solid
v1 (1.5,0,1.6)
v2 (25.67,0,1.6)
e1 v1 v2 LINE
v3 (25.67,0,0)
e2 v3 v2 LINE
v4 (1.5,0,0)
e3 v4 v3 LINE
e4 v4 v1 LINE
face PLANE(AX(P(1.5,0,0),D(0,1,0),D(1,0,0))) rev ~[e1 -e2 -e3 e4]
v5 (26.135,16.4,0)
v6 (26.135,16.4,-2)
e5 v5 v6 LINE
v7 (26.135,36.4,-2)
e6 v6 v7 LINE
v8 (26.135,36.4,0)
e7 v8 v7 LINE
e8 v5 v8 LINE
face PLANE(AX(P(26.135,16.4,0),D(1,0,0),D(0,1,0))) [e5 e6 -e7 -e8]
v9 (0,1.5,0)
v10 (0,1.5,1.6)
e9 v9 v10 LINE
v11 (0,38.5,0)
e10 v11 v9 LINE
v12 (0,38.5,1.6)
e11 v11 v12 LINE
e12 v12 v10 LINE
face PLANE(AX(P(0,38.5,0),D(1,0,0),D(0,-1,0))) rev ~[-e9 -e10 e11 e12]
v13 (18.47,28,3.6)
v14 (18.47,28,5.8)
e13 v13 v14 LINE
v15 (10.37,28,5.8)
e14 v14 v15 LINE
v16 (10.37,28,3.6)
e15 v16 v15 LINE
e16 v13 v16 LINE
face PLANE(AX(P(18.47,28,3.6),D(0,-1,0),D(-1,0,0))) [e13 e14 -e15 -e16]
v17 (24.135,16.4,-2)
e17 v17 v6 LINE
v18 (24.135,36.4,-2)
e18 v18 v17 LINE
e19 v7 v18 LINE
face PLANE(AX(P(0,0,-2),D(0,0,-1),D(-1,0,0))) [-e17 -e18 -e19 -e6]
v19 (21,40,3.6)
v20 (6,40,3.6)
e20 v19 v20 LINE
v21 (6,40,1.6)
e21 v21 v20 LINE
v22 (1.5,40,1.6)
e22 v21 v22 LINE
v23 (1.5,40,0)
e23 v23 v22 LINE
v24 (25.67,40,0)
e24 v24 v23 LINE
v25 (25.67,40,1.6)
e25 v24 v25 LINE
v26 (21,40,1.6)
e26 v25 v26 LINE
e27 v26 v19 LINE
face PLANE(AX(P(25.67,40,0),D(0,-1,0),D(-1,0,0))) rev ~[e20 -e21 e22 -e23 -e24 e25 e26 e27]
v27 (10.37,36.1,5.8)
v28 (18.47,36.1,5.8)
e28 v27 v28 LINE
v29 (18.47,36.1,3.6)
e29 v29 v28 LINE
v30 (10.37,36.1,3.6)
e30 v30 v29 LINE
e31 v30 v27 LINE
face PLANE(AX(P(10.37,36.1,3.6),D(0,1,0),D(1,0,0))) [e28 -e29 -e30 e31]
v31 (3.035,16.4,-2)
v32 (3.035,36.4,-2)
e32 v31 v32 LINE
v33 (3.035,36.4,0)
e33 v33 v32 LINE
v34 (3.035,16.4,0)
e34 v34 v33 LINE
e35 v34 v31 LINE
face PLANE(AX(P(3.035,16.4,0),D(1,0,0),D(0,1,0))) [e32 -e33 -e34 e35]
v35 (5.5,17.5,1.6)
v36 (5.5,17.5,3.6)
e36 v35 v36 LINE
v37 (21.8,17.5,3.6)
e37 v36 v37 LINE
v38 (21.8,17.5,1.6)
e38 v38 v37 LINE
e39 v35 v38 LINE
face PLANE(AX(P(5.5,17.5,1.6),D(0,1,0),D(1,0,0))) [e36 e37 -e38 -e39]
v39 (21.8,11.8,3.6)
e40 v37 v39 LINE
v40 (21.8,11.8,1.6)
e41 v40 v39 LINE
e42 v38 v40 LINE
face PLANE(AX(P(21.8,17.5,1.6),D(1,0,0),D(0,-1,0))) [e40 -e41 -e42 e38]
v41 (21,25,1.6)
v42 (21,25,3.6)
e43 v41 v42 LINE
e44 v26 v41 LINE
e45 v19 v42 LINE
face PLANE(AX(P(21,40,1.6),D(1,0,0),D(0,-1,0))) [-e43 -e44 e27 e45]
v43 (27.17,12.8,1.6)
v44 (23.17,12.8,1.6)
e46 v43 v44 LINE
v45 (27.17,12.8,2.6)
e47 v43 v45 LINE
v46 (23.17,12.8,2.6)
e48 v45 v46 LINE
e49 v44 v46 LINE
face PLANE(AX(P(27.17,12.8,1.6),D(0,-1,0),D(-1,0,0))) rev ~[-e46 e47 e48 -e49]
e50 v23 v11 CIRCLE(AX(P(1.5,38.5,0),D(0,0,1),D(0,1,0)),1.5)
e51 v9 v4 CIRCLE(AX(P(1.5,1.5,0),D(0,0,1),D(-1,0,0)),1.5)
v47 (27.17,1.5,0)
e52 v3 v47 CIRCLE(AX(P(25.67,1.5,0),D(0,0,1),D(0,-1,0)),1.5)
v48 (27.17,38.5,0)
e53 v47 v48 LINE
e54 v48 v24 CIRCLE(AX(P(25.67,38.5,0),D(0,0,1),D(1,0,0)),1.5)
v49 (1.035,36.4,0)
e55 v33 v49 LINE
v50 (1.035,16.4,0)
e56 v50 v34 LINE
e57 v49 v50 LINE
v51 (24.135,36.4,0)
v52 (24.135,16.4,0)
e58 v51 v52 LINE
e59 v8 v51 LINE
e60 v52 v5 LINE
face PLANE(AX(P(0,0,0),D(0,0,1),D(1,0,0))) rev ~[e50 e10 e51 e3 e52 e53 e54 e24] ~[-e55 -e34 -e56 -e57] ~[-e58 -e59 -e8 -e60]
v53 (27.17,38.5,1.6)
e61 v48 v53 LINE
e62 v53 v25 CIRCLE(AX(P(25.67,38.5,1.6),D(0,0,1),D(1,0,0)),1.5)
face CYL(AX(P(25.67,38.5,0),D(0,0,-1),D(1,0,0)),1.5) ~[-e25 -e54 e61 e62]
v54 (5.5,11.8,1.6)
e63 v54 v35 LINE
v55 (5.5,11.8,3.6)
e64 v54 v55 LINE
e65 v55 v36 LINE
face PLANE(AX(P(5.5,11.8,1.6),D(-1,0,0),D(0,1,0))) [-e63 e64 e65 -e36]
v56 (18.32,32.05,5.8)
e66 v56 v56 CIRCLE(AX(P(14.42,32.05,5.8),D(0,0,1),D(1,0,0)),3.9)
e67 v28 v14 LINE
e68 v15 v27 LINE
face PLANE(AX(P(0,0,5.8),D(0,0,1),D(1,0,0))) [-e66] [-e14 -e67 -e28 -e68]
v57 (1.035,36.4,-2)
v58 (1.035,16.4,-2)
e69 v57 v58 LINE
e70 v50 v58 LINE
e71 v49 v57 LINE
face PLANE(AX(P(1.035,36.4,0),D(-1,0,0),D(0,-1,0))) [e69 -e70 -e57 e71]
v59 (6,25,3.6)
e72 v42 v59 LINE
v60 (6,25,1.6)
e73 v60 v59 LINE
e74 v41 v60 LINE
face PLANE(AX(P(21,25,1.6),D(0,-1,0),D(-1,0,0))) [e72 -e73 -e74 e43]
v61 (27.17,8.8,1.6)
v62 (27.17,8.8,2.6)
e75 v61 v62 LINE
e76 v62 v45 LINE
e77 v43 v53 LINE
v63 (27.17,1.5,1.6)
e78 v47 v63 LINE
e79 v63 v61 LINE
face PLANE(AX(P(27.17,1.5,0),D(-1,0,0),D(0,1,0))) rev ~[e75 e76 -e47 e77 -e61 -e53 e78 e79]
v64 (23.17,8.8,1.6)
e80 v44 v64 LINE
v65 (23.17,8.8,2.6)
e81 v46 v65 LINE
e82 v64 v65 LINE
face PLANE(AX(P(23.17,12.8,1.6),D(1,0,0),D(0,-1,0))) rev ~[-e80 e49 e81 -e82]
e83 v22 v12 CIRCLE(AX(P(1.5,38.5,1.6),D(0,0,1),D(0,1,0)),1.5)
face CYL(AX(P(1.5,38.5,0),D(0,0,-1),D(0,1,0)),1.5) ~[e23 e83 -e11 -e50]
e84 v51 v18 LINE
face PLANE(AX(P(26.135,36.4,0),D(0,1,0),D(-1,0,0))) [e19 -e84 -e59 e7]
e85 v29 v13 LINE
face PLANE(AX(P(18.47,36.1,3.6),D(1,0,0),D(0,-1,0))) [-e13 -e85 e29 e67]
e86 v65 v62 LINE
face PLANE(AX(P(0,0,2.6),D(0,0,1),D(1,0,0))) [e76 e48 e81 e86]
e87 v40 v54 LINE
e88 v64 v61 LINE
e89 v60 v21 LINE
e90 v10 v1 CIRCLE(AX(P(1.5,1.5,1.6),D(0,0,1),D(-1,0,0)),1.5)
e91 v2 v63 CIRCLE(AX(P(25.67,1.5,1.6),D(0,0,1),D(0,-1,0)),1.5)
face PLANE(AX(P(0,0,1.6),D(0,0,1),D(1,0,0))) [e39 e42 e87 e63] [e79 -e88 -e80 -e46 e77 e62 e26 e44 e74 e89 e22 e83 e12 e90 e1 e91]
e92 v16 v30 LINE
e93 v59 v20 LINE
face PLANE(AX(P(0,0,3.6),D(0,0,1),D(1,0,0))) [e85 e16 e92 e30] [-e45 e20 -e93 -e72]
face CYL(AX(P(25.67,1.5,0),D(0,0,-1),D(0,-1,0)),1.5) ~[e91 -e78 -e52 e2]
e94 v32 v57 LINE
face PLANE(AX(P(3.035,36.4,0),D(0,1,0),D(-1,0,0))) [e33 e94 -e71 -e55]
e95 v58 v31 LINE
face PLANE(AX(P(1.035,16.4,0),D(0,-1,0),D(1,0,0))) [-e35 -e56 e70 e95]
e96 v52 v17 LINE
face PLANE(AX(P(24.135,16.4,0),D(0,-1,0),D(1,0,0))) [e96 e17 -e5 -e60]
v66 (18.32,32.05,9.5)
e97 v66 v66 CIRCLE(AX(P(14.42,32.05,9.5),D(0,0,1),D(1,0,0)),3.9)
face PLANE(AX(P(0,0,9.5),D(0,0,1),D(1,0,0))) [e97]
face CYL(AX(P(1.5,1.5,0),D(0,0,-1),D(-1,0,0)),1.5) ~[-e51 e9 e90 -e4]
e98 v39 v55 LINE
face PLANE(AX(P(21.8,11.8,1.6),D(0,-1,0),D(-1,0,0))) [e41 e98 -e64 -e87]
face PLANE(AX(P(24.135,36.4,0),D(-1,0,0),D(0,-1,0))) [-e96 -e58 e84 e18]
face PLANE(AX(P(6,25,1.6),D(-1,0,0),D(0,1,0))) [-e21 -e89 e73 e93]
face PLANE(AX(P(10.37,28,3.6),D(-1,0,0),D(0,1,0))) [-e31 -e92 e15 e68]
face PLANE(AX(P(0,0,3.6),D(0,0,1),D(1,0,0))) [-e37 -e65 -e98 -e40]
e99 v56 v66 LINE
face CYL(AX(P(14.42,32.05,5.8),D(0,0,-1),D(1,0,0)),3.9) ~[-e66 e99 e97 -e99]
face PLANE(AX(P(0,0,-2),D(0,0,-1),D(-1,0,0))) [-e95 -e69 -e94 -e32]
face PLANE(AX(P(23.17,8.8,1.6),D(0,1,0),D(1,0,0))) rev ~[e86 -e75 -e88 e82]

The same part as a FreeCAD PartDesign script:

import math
import FreeCAD as App
import Part
import Sketcher
from FreeCAD import Vector

doc = App.newDocument("Part")
body = doc.addObject("PartDesign::Body", "Body")

# Sketch on XY plane
sketch1 = body.newObject("Sketcher::SketchObject", "Sketch")
sketch1.AttachmentSupport = (doc.getObject("XY_Plane"), [""])
sketch1.MapMode = "FlatFace"
sketch1.addGeometry(Part.ArcOfCircle(Part.Circle(Vector(1.5, 1.5, 0), Vector(0, 0, 1), 1.5), math.radians(180), math.radians(270)), False)
sketch1.addGeometry(Part.LineSegment(Vector(1.5, 0, 0), Vector(25.7, 0, 0)), False)
sketch1.addGeometry(Part.ArcOfCircle(Part.Circle(Vector(25.7, 1.5, 0), Vector(0, 0, 1), 1.5), math.radians(-90), math.radians(0)), False)
sketch1.addGeometry(Part.LineSegment(Vector(27.2, 1.5, 0), Vector(27.2, 38.5, 0)), False)
sketch1.addGeometry(Part.ArcOfCircle(Part.Circle(Vector(25.7, 38.5, 0), Vector(0, 0, 1), 1.5), math.radians(0), math.radians(90)), False)
sketch1.addGeometry(Part.LineSegment(Vector(25.7, 40, 0), Vector(1.5, 40, 0)), False)
sketch1.addGeometry(Part.ArcOfCircle(Part.Circle(Vector(1.5, 38.5, 0), Vector(0, 0, 1), 1.5), math.radians(90), math.radians(180)), False)
sketch1.addGeometry(Part.LineSegment(Vector(0, 38.5, 0), Vector(0, 1.5, 0)), False)
sketch1.addConstraint(Sketcher.Constraint("Tangent", 0, 2, 1, 1))
sketch1.addConstraint(Sketcher.Constraint("Tangent", 1, 2, 2, 1))
sketch1.addConstraint(Sketcher.Constraint("Tangent", 2, 2, 3, 1))
sketch1.addConstraint(Sketcher.Constraint("Tangent", 3, 2, 4, 1))
sketch1.addConstraint(Sketcher.Constraint("Tangent", 4, 2, 5, 1))
sketch1.addConstraint(Sketcher.Constraint("Tangent", 5, 2, 6, 1))
sketch1.addConstraint(Sketcher.Constraint("Tangent", 6, 2, 7, 1))
sketch1.addConstraint(Sketcher.Constraint("Tangent", 7, 2, 0, 1))
sketch1.addConstraint(Sketcher.Constraint("Horizontal", 1))
sketch1.addConstraint(Sketcher.Constraint("Vertical", 3))
sketch1.addConstraint(Sketcher.Constraint("Horizontal", 5))
sketch1.addConstraint(Sketcher.Constraint("Vertical", 7))
sketch1.addConstraint(Sketcher.Constraint("Equal", 0, 2))
sketch1.addConstraint(Sketcher.Constraint("Equal", 2, 4))
sketch1.addConstraint(Sketcher.Constraint("Equal", 4, 6))
sketch1.addConstraint(Sketcher.Constraint("PointOnObject", 0, 2, -1))
sketch1.addConstraint(Sketcher.Constraint("PointOnObject", 6, 2, -2))
sketch1.addConstraint(Sketcher.Constraint("Radius", 0, 1.5))
sketch1.addConstraint(Sketcher.Constraint("DistanceY", -1, 1, 4, 2, 40.0))
sketch1.addConstraint(Sketcher.Constraint("DistanceX", -1, 1, 2, 2, 27.17))
pad1 = body.newObject("PartDesign::Pad", "Pad")
pad1.Profile = sketch1
pad1.Length = 1.6

# Sketch on XY plane
sketch2 = body.newObject("Sketcher::SketchObject", "Sketch001")
sketch2.AttachmentSupport = (doc.getObject("XY_Plane"), [""])
sketch2.MapMode = "FlatFace"
sketch2.AttachmentOffset = App.Placement(Vector(0, 0, 1.6), App.Rotation())
sketch2.addGeometry(Part.LineSegment(Vector(21, 25, 0), Vector(21, 40, 0)), False)
sketch2.addGeometry(Part.LineSegment(Vector(21, 40, 0), Vector(6, 40, 0)), False)
sketch2.addGeometry(Part.LineSegment(Vector(6, 40, 0), Vector(6, 25, 0)), False)
sketch2.addGeometry(Part.LineSegment(Vector(6, 25, 0), Vector(21, 25, 0)), False)
sketch2.addConstraint(Sketcher.Constraint("Coincident", 0, 2, 1, 1))
sketch2.addConstraint(Sketcher.Constraint("Coincident", 1, 2, 2, 1))
sketch2.addConstraint(Sketcher.Constraint("Coincident", 2, 2, 3, 1))
sketch2.addConstraint(Sketcher.Constraint("Coincident", 3, 2, 0, 1))
sketch2.addConstraint(Sketcher.Constraint("Vertical", 0))
sketch2.addConstraint(Sketcher.Constraint("Horizontal", 1))
sketch2.addConstraint(Sketcher.Constraint("Vertical", 2))
sketch2.addConstraint(Sketcher.Constraint("Horizontal", 3))
sketch2.addConstraint(Sketcher.Constraint("Equal", 3, 0))
sketch2.addConstraint(Sketcher.Constraint("DistanceX", 1, 2, 1, 1, 15.0))
sketch2.addConstraint(Sketcher.Constraint("DistanceX", -1, 1, 1, 2, 6.0))
sketch2.addConstraint(Sketcher.Constraint("DistanceY", -1, 1, 0, 2, 40.0))
pad2 = body.newObject("PartDesign::Pad", "Pad001")
pad2.Profile = sketch2
pad2.Length = 2

# Sketch on XY plane
sketch3 = body.newObject("Sketcher::SketchObject", "Sketch002")
sketch3.AttachmentSupport = (doc.getObject("XY_Plane"), [""])
sketch3.MapMode = "FlatFace"
sketch3.AttachmentOffset = App.Placement(Vector(0, 0, 1.6), App.Rotation())
sketch3.addGeometry(Part.LineSegment(Vector(22, 18, 0), Vector(6, 18, 0)), False)
sketch3.addGeometry(Part.LineSegment(Vector(6, 18, 0), Vector(6, 12, 0)), False)
sketch3.addGeometry(Part.LineSegment(Vector(6, 12, 0), Vector(22, 12, 0)), False)
sketch3.addGeometry(Part.LineSegment(Vector(22, 12, 0), Vector(22, 18, 0)), False)
sketch3.addConstraint(Sketcher.Constraint("Coincident", 0, 2, 1, 1))
sketch3.addConstraint(Sketcher.Constraint("Coincident", 1, 2, 2, 1))
sketch3.addConstraint(Sketcher.Constraint("Coincident", 2, 2, 3, 1))
sketch3.addConstraint(Sketcher.Constraint("Coincident", 3, 2, 0, 1))
sketch3.addConstraint(Sketcher.Constraint("Horizontal", 0))
sketch3.addConstraint(Sketcher.Constraint("Vertical", 1))
sketch3.addConstraint(Sketcher.Constraint("Horizontal", 2))
sketch3.addConstraint(Sketcher.Constraint("Vertical", 3))
sketch3.addConstraint(Sketcher.Constraint("DistanceX", 0, 2, 0, 1, 16.3))
sketch3.addConstraint(Sketcher.Constraint("DistanceY", 1, 2, 1, 1, 5.7))
sketch3.addConstraint(Sketcher.Constraint("DistanceX", -1, 1, 0, 2, 5.5))
sketch3.addConstraint(Sketcher.Constraint("DistanceY", -1, 1, 1, 2, 11.8))
pad3 = body.newObject("PartDesign::Pad", "Pad002")
pad3.Profile = sketch3
pad3.Length = 2

# Sketch on XY plane
sketch4 = body.newObject("Sketcher::SketchObject", "Sketch003")
sketch4.AttachmentSupport = (doc.getObject("XY_Plane"), [""])
sketch4.MapMode = "FlatFace"
sketch4.AttachmentOffset = App.Placement(Vector(0, 0, 1.6), App.Rotation())
sketch4.addGeometry(Part.LineSegment(Vector(23.2, 8.8, 0), Vector(27.2, 8.8, 0)), False)
sketch4.addGeometry(Part.LineSegment(Vector(27.2, 8.8, 0), Vector(27.2, 12.8, 0)), False)
sketch4.addGeometry(Part.LineSegment(Vector(27.2, 12.8, 0), Vector(23.2, 12.8, 0)), False)
sketch4.addGeometry(Part.LineSegment(Vector(23.2, 12.8, 0), Vector(23.2, 8.8, 0)), False)
sketch4.addConstraint(Sketcher.Constraint("Coincident", 0, 2, 1, 1))
sketch4.addConstraint(Sketcher.Constraint("Coincident", 1, 2, 2, 1))
sketch4.addConstraint(Sketcher.Constraint("Coincident", 2, 2, 3, 1))
sketch4.addConstraint(Sketcher.Constraint("Coincident", 3, 2, 0, 1))
sketch4.addConstraint(Sketcher.Constraint("Horizontal", 0))
sketch4.addConstraint(Sketcher.Constraint("Vertical", 1))
sketch4.addConstraint(Sketcher.Constraint("Horizontal", 2))
sketch4.addConstraint(Sketcher.Constraint("Vertical", 3))
sketch4.addConstraint(Sketcher.Constraint("Equal", 2, 1))
sketch4.addConstraint(Sketcher.Constraint("DistanceX", 0, 1, 0, 2, 4.0))
sketch4.addConstraint(Sketcher.Constraint("DistanceY", -1, 1, 0, 2, 8.8))
sketch4.addConstraint(Sketcher.Constraint("DistanceX", -1, 1, 0, 2, 27.17))
pad4 = body.newObject("PartDesign::Pad", "Pad003")
pad4.Profile = sketch4
pad4.Length = 1

# Sketch on XY plane
sketch5 = body.newObject("Sketcher::SketchObject", "Sketch004")
sketch5.AttachmentSupport = (doc.getObject("XY_Plane"), [""])
sketch5.MapMode = "FlatFace"
sketch5.AttachmentOffset = App.Placement(Vector(0, 0, 3.6), App.Rotation())
sketch5.addGeometry(Part.LineSegment(Vector(18, 36, 0), Vector(10, 36, 0)), False)
sketch5.addGeometry(Part.LineSegment(Vector(10, 36, 0), Vector(10, 28, 0)), False)
sketch5.addGeometry(Part.LineSegment(Vector(10, 28, 0), Vector(18, 28, 0)), False)
sketch5.addGeometry(Part.LineSegment(Vector(18, 28, 0), Vector(18, 36, 0)), False)
sketch5.addConstraint(Sketcher.Constraint("Coincident", 0, 2, 1, 1))
sketch5.addConstraint(Sketcher.Constraint("Coincident", 1, 2, 2, 1))
sketch5.addConstraint(Sketcher.Constraint("Coincident", 2, 2, 3, 1))
sketch5.addConstraint(Sketcher.Constraint("Coincident", 3, 2, 0, 1))
sketch5.addConstraint(Sketcher.Constraint("Horizontal", 0))
sketch5.addConstraint(Sketcher.Constraint("Vertical", 1))
sketch5.addConstraint(Sketcher.Constraint("Horizontal", 2))
sketch5.addConstraint(Sketcher.Constraint("Vertical", 3))
sketch5.addConstraint(Sketcher.Constraint("Equal", 2, 1))
sketch5.addConstraint(Sketcher.Constraint("DistanceX", 0, 2, 0, 1, 8.1))
sketch5.addConstraint(Sketcher.Constraint("DistanceY", -1, 1, 1, 2, 28.0))
sketch5.addConstraint(Sketcher.Constraint("DistanceX", -1, 1, 0, 2, 10.37))
pad5 = body.newObject("PartDesign::Pad", "Pad004")
pad5.Profile = sketch5
pad5.Length = 2.2

# Sketch on XY plane
sketch6 = body.newObject("Sketcher::SketchObject", "Sketch005")
sketch6.AttachmentSupport = (doc.getObject("XY_Plane"), [""])
sketch6.MapMode = "FlatFace"
sketch6.AttachmentOffset = App.Placement(Vector(0, 0, 5.8), App.Rotation())
sketch6.addGeometry(Part.Circle(Vector(14.4, 32, 0), Vector(0, 0, 1), 3.9), False)
sketch6.addConstraint(Sketcher.Constraint("Diameter", 0, 7.8))
sketch6.addConstraint(Sketcher.Constraint("DistanceX", -1, 1, 0, 3, 14.42))
sketch6.addConstraint(Sketcher.Constraint("DistanceY", -1, 1, 0, 3, 32.05))
pad6 = body.newObject("PartDesign::Pad", "Pad005")
pad6.Profile = sketch6
pad6.Length = 3.7

# Sketch on XY plane
sketch7 = body.newObject("Sketcher::SketchObject", "Sketch006")
sketch7.AttachmentSupport = (doc.getObject("XY_Plane"), [""])
sketch7.MapMode = "FlatFace"
sketch7.addGeometry(Part.LineSegment(Vector(3, 16.4, 0), Vector(1, 16.4, 0)), False)
sketch7.addGeometry(Part.LineSegment(Vector(1, 16.4, 0), Vector(1, 36.4, 0)), False)
sketch7.addGeometry(Part.LineSegment(Vector(1, 36.4, 0), Vector(3, 36.4, 0)), False)
sketch7.addGeometry(Part.LineSegment(Vector(3, 36.4, 0), Vector(3, 16.4, 0)), False)
sketch7.addGeometry(Part.LineSegment(Vector(26.1, 16.4, 0), Vector(24.1, 16.4, 0)), False)
sketch7.addGeometry(Part.LineSegment(Vector(24.1, 16.4, 0), Vector(24.1, 36.4, 0)), False)
sketch7.addGeometry(Part.LineSegment(Vector(24.1, 36.4, 0), Vector(26.1, 36.4, 0)), False)
sketch7.addGeometry(Part.LineSegment(Vector(26.1, 36.4, 0), Vector(26.1, 16.4, 0)), False)
sketch7.addConstraint(Sketcher.Constraint("Coincident", 0, 2, 1, 1))
sketch7.addConstraint(Sketcher.Constraint("Coincident", 1, 2, 2, 1))
sketch7.addConstraint(Sketcher.Constraint("Coincident", 2, 2, 3, 1))
sketch7.addConstraint(Sketcher.Constraint("Coincident", 3, 2, 0, 1))
sketch7.addConstraint(Sketcher.Constraint("Coincident", 4, 2, 5, 1))
sketch7.addConstraint(Sketcher.Constraint("Coincident", 5, 2, 6, 1))
sketch7.addConstraint(Sketcher.Constraint("Coincident", 6, 2, 7, 1))
sketch7.addConstraint(Sketcher.Constraint("Coincident", 7, 2, 4, 1))
sketch7.addConstraint(Sketcher.Constraint("Horizontal", 0))
sketch7.addConstraint(Sketcher.Constraint("Vertical", 1))
sketch7.addConstraint(Sketcher.Constraint("Horizontal", 2))
sketch7.addConstraint(Sketcher.Constraint("Vertical", 3))
sketch7.addConstraint(Sketcher.Constraint("Horizontal", 4))
sketch7.addConstraint(Sketcher.Constraint("Vertical", 5))
sketch7.addConstraint(Sketcher.Constraint("Horizontal", 6))
sketch7.addConstraint(Sketcher.Constraint("Vertical", 7))
sketch7.addConstraint(Sketcher.Constraint("Horizontal", 3, 2, 4, 2))
sketch7.addConstraint(Sketcher.Constraint("Horizontal", 2, 2, 5, 2))
sketch7.addConstraint(Sketcher.Constraint("Equal", 2, 4))
sketch7.addConstraint(Sketcher.Constraint("DistanceX", 0, 2, 0, 1, 2.0))
sketch7.addConstraint(Sketcher.Constraint("DistanceY", 1, 1, 1, 2, 20.0))
sketch7.addConstraint(Sketcher.Constraint("DistanceX", 1, 2, 6, 2, 25.1))
sketch7.addConstraint(Sketcher.Constraint("DistanceX", -1, 1, 0, 2, 1.035))
sketch7.addConstraint(Sketcher.Constraint("DistanceY", -1, 1, 0, 2, 16.4))
pad7 = body.newObject("PartDesign::Pad", "Pad006")
pad7.Profile = sketch7
pad7.Length = 2
pad7.Reversed = True

doc.recompute()
